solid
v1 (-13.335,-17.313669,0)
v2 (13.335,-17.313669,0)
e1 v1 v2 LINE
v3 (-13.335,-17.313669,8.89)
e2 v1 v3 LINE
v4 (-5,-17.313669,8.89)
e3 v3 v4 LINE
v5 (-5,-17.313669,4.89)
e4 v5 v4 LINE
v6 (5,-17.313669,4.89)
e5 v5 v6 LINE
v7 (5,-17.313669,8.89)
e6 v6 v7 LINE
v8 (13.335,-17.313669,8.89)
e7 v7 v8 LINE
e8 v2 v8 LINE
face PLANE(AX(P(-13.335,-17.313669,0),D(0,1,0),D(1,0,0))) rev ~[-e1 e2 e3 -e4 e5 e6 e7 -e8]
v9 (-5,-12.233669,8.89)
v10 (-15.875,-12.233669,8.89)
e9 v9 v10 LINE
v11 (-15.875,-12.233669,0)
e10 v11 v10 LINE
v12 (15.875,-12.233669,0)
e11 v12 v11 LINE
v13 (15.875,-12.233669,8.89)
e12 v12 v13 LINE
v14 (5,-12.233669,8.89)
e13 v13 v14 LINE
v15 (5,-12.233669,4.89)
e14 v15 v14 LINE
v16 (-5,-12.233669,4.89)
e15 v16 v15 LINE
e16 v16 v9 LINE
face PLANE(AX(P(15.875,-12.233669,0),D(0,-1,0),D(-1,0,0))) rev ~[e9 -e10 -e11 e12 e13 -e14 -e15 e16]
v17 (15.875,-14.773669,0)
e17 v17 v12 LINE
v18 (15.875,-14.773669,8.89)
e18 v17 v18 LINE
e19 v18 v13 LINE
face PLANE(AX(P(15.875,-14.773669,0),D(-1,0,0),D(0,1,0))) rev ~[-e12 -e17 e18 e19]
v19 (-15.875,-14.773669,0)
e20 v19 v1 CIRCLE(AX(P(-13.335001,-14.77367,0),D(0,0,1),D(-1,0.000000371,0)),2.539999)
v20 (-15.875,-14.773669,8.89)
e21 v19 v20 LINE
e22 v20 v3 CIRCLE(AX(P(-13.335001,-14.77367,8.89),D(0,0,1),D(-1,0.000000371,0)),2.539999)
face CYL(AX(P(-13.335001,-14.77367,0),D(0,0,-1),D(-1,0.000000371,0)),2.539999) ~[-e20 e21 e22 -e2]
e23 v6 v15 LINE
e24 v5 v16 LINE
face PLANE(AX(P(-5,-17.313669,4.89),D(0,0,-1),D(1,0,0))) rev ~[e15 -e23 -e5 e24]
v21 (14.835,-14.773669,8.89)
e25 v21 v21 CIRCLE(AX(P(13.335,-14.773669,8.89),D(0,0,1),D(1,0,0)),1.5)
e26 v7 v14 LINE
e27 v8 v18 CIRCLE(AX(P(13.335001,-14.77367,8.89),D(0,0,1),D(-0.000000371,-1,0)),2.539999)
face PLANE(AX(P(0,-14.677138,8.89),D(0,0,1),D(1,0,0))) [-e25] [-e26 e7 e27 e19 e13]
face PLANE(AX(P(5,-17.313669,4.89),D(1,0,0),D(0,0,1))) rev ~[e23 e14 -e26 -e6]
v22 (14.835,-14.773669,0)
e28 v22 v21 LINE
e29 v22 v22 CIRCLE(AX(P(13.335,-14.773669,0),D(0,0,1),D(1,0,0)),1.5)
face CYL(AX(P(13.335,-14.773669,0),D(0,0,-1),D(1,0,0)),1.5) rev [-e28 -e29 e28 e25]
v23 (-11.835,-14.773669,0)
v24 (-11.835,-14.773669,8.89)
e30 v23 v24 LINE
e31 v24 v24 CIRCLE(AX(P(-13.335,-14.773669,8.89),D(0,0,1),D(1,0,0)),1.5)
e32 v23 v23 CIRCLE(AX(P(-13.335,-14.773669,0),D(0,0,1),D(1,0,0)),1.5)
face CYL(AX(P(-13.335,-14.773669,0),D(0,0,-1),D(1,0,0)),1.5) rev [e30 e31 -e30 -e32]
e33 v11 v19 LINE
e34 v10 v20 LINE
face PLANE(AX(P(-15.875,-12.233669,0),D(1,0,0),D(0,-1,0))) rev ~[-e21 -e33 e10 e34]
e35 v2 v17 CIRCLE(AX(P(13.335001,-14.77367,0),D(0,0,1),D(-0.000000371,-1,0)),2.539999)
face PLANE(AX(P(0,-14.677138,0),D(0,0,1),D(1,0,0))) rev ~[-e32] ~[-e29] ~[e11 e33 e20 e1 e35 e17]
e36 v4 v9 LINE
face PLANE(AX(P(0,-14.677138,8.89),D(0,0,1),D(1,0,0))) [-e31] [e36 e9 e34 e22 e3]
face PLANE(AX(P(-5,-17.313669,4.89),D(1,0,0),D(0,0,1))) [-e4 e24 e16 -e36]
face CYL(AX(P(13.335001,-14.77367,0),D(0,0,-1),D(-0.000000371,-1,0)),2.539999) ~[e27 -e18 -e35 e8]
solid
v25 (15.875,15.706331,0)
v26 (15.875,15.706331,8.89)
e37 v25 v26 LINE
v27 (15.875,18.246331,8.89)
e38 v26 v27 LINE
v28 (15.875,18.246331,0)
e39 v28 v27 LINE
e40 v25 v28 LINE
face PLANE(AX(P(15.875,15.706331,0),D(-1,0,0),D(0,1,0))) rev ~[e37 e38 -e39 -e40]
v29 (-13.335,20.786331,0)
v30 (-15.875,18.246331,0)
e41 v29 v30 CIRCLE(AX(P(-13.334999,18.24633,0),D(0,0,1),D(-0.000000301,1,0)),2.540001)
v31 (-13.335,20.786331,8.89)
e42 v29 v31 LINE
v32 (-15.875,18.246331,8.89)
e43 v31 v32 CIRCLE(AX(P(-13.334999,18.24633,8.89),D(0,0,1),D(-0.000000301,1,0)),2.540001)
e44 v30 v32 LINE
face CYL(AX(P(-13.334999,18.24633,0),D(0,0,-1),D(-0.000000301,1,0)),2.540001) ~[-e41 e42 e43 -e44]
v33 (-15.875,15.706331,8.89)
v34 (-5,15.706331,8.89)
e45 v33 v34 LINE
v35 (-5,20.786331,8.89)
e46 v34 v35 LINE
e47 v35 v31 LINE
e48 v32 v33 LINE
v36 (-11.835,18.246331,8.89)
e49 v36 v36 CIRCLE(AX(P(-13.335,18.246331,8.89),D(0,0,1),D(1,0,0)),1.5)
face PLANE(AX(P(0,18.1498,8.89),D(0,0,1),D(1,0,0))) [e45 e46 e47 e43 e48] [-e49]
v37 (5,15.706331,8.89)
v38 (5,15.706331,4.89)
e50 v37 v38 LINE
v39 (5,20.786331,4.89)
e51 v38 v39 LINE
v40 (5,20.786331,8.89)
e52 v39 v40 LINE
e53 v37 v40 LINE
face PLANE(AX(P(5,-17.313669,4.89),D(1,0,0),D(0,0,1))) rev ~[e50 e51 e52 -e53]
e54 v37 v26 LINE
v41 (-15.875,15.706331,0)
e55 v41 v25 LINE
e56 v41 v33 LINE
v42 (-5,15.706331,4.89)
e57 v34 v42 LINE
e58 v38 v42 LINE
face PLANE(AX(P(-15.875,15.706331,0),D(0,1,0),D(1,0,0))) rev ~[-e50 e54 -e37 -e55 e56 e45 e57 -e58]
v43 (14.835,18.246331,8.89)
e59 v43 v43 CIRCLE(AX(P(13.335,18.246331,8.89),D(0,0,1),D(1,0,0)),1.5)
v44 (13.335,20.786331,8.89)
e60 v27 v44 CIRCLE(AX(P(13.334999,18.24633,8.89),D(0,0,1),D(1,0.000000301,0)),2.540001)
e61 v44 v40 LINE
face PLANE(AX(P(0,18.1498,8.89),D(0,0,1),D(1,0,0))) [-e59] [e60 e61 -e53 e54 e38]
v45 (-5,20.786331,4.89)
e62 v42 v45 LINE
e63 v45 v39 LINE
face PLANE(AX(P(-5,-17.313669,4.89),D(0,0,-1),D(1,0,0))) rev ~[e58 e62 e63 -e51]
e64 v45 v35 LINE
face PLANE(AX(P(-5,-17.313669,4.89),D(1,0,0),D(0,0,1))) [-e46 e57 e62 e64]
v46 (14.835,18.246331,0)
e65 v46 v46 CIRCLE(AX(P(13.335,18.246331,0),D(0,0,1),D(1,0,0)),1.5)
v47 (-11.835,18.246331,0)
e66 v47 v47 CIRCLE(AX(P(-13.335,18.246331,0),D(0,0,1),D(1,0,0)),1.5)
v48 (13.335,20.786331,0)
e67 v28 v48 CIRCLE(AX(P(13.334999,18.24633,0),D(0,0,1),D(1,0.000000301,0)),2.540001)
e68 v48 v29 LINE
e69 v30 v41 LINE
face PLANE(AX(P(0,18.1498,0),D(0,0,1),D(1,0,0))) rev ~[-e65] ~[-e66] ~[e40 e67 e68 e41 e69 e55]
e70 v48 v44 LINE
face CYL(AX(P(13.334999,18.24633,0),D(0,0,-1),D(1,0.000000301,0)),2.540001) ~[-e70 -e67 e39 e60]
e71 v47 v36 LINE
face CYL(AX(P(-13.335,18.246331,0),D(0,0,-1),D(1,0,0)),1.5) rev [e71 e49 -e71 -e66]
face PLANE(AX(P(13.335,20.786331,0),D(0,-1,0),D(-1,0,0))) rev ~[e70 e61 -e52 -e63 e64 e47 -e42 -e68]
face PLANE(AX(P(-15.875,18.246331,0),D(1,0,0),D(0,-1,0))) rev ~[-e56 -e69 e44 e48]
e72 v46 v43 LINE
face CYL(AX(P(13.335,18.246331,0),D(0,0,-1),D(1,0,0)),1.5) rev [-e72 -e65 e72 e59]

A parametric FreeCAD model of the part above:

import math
import FreeCAD as App
import Part
import Sketcher
from FreeCAD import Vector
Q = App.Units.Quantity

doc = App.newDocument("Part")
params = doc.addObject("Spreadsheet::Sheet", "Params")
for row, (alias, value) in enumerate([
    ("sketch1_radius", "0.1 in"),
    ("sketch1_height", "0.1 in"),
    ("sketch1_width", "1.25 in"),
    ("pad1_length", "0.35 in"),
], start=1):
    params.set(f"A{row}", alias)
    params.set(f"B{row}", "=" + value)
    params.setAlias(f"B{row}", alias)

body = doc.addObject("PartDesign::Body", "Body")
body.AllowCompound = True

# Sketch on XY plane
sketch1 = doc.addObject("Sketcher::SketchObject", "Sketch")
body.addObject(sketch1)
sketch1.AttachmentSupport = (doc.XY_Plane, [""])
sketch1.MapMode = "FlatFace"
sketch1.addGeometry([
    Part.LineSegment(Vector(-15.9, 15.7, 0), Vector(15.9, 15.7, 0)),  # 0
    Part.LineSegment(Vector(15.9, 15.7, 0), Vector(15.9, 18.2, 0)),  # 1
    Part.ArcOfCircle(Part.Circle(Vector(13.3, 18.2, 0), Vector(0, 0, 1), 2.5), math.radians(0), math.radians(90)),  # 2
    Part.LineSegment(Vector(13.3, 20.8, 0), Vector(-13.3, 20.8, 0)),  # 3
    Part.ArcOfCircle(Part.Circle(Vector(-13.3, 18.2, 0), Vector(0, 0, 1), 2.5), math.radians(90), math.radians(180)),  # 4
    Part.LineSegment(Vector(-15.9, 18.2, 0), Vector(-15.9, 15.7, 0)),  # 5
    Part.Circle(Vector(-13.3, 18.2, 0), Vector(0, 0, 1), 1.5),  # 6
    Part.Circle(Vector(13.3, 18.2, 0), Vector(0, 0, 1), 1.5),  # 7
    Part.LineSegment(Vector(-13.3, -17.3, 0), Vector(13.3, -17.3, 0)),  # 8
    Part.ArcOfCircle(Part.Circle(Vector(13.3, -14.8, 0), Vector(0, 0, 1), 2.5), math.radians(-90), math.radians(0)),  # 9
    Part.LineSegment(Vector(15.9, -14.8, 0), Vector(15.9, -12.2, 0)),  # 10
    Part.LineSegment(Vector(15.9, -12.2, 0), Vector(-15.9, -12.2, 0)),  # 11
    Part.LineSegment(Vector(-15.9, -12.2, 0), Vector(-15.9, -14.8, 0)),  # 12
    Part.ArcOfCircle(Part.Circle(Vector(-13.3, -14.8, 0), Vector(0, 0, 1), 2.5), math.radians(180), math.radians(270)),  # 13
    Part.Circle(Vector(-13.3, -14.8, 0), Vector(0, 0, 1), 1.5),  # 14
    Part.Circle(Vector(13.3, -14.8, 0), Vector(0, 0, 1), 1.5),  # 15
], False)
sketch1.addConstraint([
    Sketcher.Constraint("Coincident", 0, 2, 1, 1),
    Sketcher.Constraint("Tangent", 1, 2, 2, 1),
    Sketcher.Constraint("Tangent", 2, 2, 3, 1),
    Sketcher.Constraint("Tangent", 3, 2, 4, 1),
    Sketcher.Constraint("Tangent", 4, 2, 5, 1),
    Sketcher.Constraint("Coincident", 5, 2, 0, 1),
    Sketcher.Constraint("Tangent", 8, 2, 9, 1),
    Sketcher.Constraint("Tangent", 9, 2, 10, 1),
    Sketcher.Constraint("Coincident", 10, 2, 11, 1),
    Sketcher.Constraint("Coincident", 11, 2, 12, 1),
    Sketcher.Constraint("Tangent", 12, 2, 13, 1),
    Sketcher.Constraint("Tangent", 13, 2, 8, 1),
    Sketcher.Constraint("Horizontal", 0),
    Sketcher.Constraint("Vertical", 1),
    Sketcher.Constraint("Horizontal", 3),
    Sketcher.Constraint("Vertical", 5),
    Sketcher.Constraint("Horizontal", 8),
    Sketcher.Constraint("Vertical", 10),
    Sketcher.Constraint("Horizontal", 11),
    Sketcher.Constraint("Vertical", 12),
    Sketcher.Constraint("Coincident", 6, 3, 4, 3),
    Sketcher.Constraint("Coincident", 7, 3, 2, 3),
    Sketcher.Constraint("Coincident", 14, 3, 13, 3),
    Sketcher.Constraint("Coincident", 15, 3, 9, 3),
    Sketcher.Constraint("Equal", 2, 4),
    Sketcher.Constraint("Equal", 6, 7),
    Sketcher.Constraint("Equal", 4, 9),
    Sketcher.Constraint("Equal", 9, 13),
    Sketcher.Constraint("Equal", 7, 14),
    Sketcher.Constraint("Equal", 14, 15),
    Sketcher.Constraint("Vertical", 7, 3, 9, 3),
    Sketcher.Constraint("Vertical", 6, 3, 13, 3),
    Sketcher.Constraint("Equal", 5, 10),
    Sketcher.Constraint("Radius", 2, Q("0.1 in")),
    Sketcher.Constraint("DistanceY", 1, 1, 1, 2, Q("0.1 in")),
    Sketcher.Constraint("DistanceX", 0, 1, 0, 2, Q("1.25 in")),
    Sketcher.Constraint("DistanceY", 9, 3, 2, 3, Q("1.3 in")),
    Sketcher.Constraint("Diameter", 6, 3.0),
    Sketcher.Constraint("DistanceX", -1, 1, 2, 3, Q("0.525 in")),
    Sketcher.Constraint("DistanceY", -1, 1, 2, 3, 18.24633),
])
sketch1.setExpression("Constraints[33]", "Params.sketch1_radius")
sketch1.setExpression("Constraints[34]", "Params.sketch1_height")
sketch1.setExpression("Constraints[35]", "Params.sketch1_width")
pad1 = doc.addObject("PartDesign::Pad", "Pad")
body.addObject(pad1)
pad1.Profile = sketch1
pad1.setExpression("Length", "Params.pad1_length")

# Sketch on XZ plane
sketch2 = doc.addObject("Sketcher::SketchObject", "Sketch001")
body.addObject(sketch2)
sketch2.AttachmentSupport = (doc.XZ_Plane, [""])
sketch2.MapMode = "FlatFace"
sketch2.AttachmentOffset = App.Placement(Vector(0, 0, 17.313669), App.Rotation())
sketch2.addGeometry([
    Part.LineSegment(Vector(-5, 8.9, 0), Vector(-5, 4.9, 0)),
    Part.LineSegment(Vector(-5, 4.9, 0), Vector(5, 4.9, 0)),
    Part.LineSegment(Vector(5, 4.9, 0), Vector(5, 8.9, 0)),
    Part.LineSegment(Vector(5, 8.9, 0), Vector(-5, 8.9, 0)),
], False)
sketch2.addConstraint([
    Sketcher.Constraint("Coincident", 0, 2, 1, 1),
    Sketcher.Constraint("Coincident", 1, 2, 2, 1),
    Sketcher.Constraint("Coincident", 2, 2, 3, 1),
    Sketcher.Constraint("Coincident", 3, 2, 0, 1),
    Sketcher.Constraint("Vertical", 0),
    Sketcher.Constraint("Horizontal", 1),
    Sketcher.Constraint("Vertical", 2),
    Sketcher.Constraint("Horizontal", 3),
    Sketcher.Constraint("DistanceY", -1, 1, 2, 2, Q("0.35 in")),
    Sketcher.Constraint("DistanceX", 1, 1, 1, 2, 10.0),
    Sketcher.Constraint("DistanceY", 0, 2, 0, 1, 4.0),
    Sketcher.Constraint("DistanceX", 0, 2, -1, 1, 5.0),
])
pocket1 = doc.addObject("PartDesign::Pocket", "Pocket")
body.addObject(pocket1)
pocket1.Profile = sketch2
pocket1.Type = "ThroughAll"

doc.recompute()
